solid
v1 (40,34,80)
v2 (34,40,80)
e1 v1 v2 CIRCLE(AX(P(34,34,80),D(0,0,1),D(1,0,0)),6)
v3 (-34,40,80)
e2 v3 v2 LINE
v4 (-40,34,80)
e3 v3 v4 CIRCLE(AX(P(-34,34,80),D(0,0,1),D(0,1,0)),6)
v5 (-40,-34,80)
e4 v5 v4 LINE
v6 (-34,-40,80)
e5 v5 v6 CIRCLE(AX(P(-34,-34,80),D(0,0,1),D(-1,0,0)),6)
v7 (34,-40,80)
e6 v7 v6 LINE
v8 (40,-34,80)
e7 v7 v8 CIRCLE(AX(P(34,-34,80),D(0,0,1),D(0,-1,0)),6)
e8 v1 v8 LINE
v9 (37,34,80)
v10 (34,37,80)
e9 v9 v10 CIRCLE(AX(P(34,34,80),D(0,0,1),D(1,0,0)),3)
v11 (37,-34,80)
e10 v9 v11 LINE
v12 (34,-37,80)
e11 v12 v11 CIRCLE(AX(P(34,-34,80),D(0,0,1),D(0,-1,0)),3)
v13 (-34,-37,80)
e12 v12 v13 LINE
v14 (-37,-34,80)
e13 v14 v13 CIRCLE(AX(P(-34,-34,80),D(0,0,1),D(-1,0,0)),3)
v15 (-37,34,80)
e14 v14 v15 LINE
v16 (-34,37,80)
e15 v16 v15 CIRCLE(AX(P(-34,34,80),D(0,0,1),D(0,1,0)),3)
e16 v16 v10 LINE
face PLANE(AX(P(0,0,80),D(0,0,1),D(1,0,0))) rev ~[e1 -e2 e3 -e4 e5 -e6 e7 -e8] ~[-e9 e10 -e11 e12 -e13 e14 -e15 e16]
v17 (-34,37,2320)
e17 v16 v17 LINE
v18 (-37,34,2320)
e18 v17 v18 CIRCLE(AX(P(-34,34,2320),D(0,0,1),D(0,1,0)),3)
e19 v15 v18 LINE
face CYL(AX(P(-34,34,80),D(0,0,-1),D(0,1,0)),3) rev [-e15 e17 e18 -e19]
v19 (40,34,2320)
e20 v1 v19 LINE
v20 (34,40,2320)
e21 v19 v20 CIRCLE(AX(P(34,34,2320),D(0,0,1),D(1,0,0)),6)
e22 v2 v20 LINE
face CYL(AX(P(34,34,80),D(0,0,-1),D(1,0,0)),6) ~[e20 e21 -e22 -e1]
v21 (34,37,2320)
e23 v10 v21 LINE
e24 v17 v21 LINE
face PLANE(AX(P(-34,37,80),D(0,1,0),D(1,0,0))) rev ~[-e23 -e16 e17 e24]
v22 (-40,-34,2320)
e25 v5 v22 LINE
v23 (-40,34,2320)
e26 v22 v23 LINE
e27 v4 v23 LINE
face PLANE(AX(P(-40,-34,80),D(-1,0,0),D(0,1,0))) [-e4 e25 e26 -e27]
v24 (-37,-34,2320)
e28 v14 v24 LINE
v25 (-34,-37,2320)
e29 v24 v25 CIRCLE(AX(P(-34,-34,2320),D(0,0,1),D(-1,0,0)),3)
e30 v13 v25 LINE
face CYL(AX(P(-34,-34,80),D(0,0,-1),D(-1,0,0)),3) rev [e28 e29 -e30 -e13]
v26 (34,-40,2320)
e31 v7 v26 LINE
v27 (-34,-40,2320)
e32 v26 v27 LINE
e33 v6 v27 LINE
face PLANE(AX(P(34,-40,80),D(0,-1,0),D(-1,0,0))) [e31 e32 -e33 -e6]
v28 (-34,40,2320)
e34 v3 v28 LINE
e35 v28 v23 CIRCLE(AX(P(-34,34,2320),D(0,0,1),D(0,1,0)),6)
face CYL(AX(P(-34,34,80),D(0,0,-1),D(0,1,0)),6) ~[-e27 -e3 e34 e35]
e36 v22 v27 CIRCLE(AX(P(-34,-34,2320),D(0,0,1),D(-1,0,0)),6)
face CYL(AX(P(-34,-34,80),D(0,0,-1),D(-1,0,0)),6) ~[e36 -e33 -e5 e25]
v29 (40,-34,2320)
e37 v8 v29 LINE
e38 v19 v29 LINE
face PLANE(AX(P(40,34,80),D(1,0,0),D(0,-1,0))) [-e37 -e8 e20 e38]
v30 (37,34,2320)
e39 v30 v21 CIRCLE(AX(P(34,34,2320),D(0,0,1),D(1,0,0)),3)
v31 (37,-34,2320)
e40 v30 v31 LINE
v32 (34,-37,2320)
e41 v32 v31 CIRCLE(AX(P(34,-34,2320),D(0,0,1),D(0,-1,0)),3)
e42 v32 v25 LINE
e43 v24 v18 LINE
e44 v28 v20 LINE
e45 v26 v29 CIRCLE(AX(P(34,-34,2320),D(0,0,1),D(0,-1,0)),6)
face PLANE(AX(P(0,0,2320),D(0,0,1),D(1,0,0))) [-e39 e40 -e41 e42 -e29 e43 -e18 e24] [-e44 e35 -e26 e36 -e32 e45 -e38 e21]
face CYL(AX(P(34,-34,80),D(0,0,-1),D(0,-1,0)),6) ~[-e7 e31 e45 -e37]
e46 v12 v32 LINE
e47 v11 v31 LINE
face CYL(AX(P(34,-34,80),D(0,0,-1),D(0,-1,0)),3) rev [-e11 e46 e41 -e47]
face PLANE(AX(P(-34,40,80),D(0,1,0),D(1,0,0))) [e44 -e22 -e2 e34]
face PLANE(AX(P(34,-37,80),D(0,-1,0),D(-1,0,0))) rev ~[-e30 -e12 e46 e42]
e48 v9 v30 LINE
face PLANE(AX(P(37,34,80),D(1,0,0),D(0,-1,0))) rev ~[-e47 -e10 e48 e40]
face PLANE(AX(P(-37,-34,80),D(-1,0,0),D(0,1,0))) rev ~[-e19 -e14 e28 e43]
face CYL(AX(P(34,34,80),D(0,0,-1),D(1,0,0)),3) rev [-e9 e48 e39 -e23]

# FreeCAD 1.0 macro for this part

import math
import FreeCAD as App
import Part
import Sketcher
from FreeCAD import Vector
Q = App.Units.Quantity

doc = App.newDocument("Part")
body = doc.addObject("PartDesign::Body", "Body")

sketch1 = doc.addObject("Sketcher::SketchObject", "Sketch")
body.addObject(sketch1)
sketch1.AttachmentSupport = (doc.XY_Plane, [""])
sketch1.MapMode = "FlatFace"
sketch1.AttachmentOffset = App.Placement(Vector(0, 0, 80), App.Rotation())
sketch1.addGeometry([
    Part.LineSegment(Vector(-40, 34, 0), Vector(-40, -34, 0)),
    Part.ArcOfCircle(Part.Circle(Vector(-34, -34, 0), Vector(0, 0, 1), 6), math.radians(180), math.radians(270)),
    Part.LineSegment(Vector(-34, -40, 0), Vector(34, -40, 0)),
    Part.ArcOfCircle(Part.Circle(Vector(34, -34, 0), Vector(0, 0, 1), 6), math.radians(-90), math.radians(0)),
    Part.LineSegment(Vector(40, -34, 0), Vector(40, 34, 0)),
    Part.ArcOfCircle(Part.Circle(Vector(34, 34, 0), Vector(0, 0, 1), 6), math.radians(0), math.radians(90)),
    Part.LineSegment(Vector(34, 40, 0), Vector(-34, 40, 0)),
    Part.ArcOfCircle(Part.Circle(Vector(-34, 34, 0), Vector(0, 0, 1), 6), math.radians(90), math.radians(180)),
    Part.ArcOfCircle(Part.Circle(Vector(-34, 34, 0), Vector(0, 0, 1), 3), math.radians(90), math.radians(180)),
    Part.LineSegment(Vector(-34, 37, 0), Vector(34, 37, 0)),
    Part.ArcOfCircle(Part.Circle(Vector(34, 34, 0), Vector(0, 0, 1), 3), math.radians(0), math.radians(90)),
    Part.LineSegment(Vector(37, 34, 0), Vector(37, -34, 0)),
    Part.ArcOfCircle(Part.Circle(Vector(34, -34, 0), Vector(0, 0, 1), 3), math.radians(-90), math.radians(0)),
    Part.LineSegment(Vector(34, -37, 0), Vector(-34, -37, 0)),
    Part.ArcOfCircle(Part.Circle(Vector(-34, -34, 0), Vector(0, 0, 1), 3), math.radians(180), math.radians(270)),
    Part.LineSegment(Vector(-37, -34, 0), Vector(-37, 34, 0)),
], False)
sketch1.addConstraint([
    Sketcher.Constraint("Tangent", 0, 2, 1, 1),
    Sketcher.Constraint("Tangent", 1, 2, 2, 1),
    Sketcher.Constraint("Tangent", 2, 2, 3, 1),
    Sketcher.Constraint("Tangent", 3, 2, 4, 1),
    Sketcher.Constraint("Tangent", 4, 2, 5, 1),
    Sketcher.Constraint("Tangent", 5, 2, 6, 1),
    Sketcher.Constraint("Tangent", 6, 2, 7, 1),
    Sketcher.Constraint("Tangent", 7, 2, 0, 1),
    Sketcher.Constraint("Tangent", 8, 1, 9, 1),
    Sketcher.Constraint("Tangent", 9, 2, 10, 2),
    Sketcher.Constraint("Tangent", 10, 1, 11, 1),
    Sketcher.Constraint("Tangent", 11, 2, 12, 2),
    Sketcher.Constraint("Tangent", 12, 1, 13, 1),
    Sketcher.Constraint("Tangent", 13, 2, 14, 2),
    Sketcher.Constraint("Tangent", 14, 1, 15, 1),
    Sketcher.Constraint("Tangent", 15, 2, 8, 2),
    Sketcher.Constraint("Vertical", 0),
    Sketcher.Constraint("Horizontal", 2),
    Sketcher.Constraint("Vertical", 4),
    Sketcher.Constraint("Horizontal", 6),
    Sketcher.Constraint("Horizontal", 9),
    Sketcher.Constraint("Vertical", 11),
    Sketcher.Constraint("Horizontal", 13),
    Sketcher.Constraint("Vertical", 15),
    Sketcher.Constraint("Coincident", 8, 3, 7, 3),
    Sketcher.Constraint("Coincident", 10, 3, 5, 3),
    Sketcher.Constraint("Coincident", 12, 3, 3, 3),
    Sketcher.Constraint("Equal", 1, 3),
    Sketcher.Constraint("Equal", 3, 5),
    Sketcher.Constraint("Equal", 5, 7),
    Sketcher.Constraint("Equal", 12, 14),
    Sketcher.Constraint("Symmetric", 1, 3, 5, 3, -1, 1),
    Sketcher.Constraint("Equal", 13, 0),
    Sketcher.Constraint("Radius", 1, Q("6 mm")),
    Sketcher.Constraint("Radius", 8, Q("3 mm")),
    Sketcher.Constraint("DistanceX", 0, 2, -1, 1, Q("40 mm")),
])
pad1 = doc.addObject("PartDesign::Pad", "Pad")
body.addObject(pad1)
pad1.Profile = sketch1
pad1.Length = 2240

doc.recompute()
